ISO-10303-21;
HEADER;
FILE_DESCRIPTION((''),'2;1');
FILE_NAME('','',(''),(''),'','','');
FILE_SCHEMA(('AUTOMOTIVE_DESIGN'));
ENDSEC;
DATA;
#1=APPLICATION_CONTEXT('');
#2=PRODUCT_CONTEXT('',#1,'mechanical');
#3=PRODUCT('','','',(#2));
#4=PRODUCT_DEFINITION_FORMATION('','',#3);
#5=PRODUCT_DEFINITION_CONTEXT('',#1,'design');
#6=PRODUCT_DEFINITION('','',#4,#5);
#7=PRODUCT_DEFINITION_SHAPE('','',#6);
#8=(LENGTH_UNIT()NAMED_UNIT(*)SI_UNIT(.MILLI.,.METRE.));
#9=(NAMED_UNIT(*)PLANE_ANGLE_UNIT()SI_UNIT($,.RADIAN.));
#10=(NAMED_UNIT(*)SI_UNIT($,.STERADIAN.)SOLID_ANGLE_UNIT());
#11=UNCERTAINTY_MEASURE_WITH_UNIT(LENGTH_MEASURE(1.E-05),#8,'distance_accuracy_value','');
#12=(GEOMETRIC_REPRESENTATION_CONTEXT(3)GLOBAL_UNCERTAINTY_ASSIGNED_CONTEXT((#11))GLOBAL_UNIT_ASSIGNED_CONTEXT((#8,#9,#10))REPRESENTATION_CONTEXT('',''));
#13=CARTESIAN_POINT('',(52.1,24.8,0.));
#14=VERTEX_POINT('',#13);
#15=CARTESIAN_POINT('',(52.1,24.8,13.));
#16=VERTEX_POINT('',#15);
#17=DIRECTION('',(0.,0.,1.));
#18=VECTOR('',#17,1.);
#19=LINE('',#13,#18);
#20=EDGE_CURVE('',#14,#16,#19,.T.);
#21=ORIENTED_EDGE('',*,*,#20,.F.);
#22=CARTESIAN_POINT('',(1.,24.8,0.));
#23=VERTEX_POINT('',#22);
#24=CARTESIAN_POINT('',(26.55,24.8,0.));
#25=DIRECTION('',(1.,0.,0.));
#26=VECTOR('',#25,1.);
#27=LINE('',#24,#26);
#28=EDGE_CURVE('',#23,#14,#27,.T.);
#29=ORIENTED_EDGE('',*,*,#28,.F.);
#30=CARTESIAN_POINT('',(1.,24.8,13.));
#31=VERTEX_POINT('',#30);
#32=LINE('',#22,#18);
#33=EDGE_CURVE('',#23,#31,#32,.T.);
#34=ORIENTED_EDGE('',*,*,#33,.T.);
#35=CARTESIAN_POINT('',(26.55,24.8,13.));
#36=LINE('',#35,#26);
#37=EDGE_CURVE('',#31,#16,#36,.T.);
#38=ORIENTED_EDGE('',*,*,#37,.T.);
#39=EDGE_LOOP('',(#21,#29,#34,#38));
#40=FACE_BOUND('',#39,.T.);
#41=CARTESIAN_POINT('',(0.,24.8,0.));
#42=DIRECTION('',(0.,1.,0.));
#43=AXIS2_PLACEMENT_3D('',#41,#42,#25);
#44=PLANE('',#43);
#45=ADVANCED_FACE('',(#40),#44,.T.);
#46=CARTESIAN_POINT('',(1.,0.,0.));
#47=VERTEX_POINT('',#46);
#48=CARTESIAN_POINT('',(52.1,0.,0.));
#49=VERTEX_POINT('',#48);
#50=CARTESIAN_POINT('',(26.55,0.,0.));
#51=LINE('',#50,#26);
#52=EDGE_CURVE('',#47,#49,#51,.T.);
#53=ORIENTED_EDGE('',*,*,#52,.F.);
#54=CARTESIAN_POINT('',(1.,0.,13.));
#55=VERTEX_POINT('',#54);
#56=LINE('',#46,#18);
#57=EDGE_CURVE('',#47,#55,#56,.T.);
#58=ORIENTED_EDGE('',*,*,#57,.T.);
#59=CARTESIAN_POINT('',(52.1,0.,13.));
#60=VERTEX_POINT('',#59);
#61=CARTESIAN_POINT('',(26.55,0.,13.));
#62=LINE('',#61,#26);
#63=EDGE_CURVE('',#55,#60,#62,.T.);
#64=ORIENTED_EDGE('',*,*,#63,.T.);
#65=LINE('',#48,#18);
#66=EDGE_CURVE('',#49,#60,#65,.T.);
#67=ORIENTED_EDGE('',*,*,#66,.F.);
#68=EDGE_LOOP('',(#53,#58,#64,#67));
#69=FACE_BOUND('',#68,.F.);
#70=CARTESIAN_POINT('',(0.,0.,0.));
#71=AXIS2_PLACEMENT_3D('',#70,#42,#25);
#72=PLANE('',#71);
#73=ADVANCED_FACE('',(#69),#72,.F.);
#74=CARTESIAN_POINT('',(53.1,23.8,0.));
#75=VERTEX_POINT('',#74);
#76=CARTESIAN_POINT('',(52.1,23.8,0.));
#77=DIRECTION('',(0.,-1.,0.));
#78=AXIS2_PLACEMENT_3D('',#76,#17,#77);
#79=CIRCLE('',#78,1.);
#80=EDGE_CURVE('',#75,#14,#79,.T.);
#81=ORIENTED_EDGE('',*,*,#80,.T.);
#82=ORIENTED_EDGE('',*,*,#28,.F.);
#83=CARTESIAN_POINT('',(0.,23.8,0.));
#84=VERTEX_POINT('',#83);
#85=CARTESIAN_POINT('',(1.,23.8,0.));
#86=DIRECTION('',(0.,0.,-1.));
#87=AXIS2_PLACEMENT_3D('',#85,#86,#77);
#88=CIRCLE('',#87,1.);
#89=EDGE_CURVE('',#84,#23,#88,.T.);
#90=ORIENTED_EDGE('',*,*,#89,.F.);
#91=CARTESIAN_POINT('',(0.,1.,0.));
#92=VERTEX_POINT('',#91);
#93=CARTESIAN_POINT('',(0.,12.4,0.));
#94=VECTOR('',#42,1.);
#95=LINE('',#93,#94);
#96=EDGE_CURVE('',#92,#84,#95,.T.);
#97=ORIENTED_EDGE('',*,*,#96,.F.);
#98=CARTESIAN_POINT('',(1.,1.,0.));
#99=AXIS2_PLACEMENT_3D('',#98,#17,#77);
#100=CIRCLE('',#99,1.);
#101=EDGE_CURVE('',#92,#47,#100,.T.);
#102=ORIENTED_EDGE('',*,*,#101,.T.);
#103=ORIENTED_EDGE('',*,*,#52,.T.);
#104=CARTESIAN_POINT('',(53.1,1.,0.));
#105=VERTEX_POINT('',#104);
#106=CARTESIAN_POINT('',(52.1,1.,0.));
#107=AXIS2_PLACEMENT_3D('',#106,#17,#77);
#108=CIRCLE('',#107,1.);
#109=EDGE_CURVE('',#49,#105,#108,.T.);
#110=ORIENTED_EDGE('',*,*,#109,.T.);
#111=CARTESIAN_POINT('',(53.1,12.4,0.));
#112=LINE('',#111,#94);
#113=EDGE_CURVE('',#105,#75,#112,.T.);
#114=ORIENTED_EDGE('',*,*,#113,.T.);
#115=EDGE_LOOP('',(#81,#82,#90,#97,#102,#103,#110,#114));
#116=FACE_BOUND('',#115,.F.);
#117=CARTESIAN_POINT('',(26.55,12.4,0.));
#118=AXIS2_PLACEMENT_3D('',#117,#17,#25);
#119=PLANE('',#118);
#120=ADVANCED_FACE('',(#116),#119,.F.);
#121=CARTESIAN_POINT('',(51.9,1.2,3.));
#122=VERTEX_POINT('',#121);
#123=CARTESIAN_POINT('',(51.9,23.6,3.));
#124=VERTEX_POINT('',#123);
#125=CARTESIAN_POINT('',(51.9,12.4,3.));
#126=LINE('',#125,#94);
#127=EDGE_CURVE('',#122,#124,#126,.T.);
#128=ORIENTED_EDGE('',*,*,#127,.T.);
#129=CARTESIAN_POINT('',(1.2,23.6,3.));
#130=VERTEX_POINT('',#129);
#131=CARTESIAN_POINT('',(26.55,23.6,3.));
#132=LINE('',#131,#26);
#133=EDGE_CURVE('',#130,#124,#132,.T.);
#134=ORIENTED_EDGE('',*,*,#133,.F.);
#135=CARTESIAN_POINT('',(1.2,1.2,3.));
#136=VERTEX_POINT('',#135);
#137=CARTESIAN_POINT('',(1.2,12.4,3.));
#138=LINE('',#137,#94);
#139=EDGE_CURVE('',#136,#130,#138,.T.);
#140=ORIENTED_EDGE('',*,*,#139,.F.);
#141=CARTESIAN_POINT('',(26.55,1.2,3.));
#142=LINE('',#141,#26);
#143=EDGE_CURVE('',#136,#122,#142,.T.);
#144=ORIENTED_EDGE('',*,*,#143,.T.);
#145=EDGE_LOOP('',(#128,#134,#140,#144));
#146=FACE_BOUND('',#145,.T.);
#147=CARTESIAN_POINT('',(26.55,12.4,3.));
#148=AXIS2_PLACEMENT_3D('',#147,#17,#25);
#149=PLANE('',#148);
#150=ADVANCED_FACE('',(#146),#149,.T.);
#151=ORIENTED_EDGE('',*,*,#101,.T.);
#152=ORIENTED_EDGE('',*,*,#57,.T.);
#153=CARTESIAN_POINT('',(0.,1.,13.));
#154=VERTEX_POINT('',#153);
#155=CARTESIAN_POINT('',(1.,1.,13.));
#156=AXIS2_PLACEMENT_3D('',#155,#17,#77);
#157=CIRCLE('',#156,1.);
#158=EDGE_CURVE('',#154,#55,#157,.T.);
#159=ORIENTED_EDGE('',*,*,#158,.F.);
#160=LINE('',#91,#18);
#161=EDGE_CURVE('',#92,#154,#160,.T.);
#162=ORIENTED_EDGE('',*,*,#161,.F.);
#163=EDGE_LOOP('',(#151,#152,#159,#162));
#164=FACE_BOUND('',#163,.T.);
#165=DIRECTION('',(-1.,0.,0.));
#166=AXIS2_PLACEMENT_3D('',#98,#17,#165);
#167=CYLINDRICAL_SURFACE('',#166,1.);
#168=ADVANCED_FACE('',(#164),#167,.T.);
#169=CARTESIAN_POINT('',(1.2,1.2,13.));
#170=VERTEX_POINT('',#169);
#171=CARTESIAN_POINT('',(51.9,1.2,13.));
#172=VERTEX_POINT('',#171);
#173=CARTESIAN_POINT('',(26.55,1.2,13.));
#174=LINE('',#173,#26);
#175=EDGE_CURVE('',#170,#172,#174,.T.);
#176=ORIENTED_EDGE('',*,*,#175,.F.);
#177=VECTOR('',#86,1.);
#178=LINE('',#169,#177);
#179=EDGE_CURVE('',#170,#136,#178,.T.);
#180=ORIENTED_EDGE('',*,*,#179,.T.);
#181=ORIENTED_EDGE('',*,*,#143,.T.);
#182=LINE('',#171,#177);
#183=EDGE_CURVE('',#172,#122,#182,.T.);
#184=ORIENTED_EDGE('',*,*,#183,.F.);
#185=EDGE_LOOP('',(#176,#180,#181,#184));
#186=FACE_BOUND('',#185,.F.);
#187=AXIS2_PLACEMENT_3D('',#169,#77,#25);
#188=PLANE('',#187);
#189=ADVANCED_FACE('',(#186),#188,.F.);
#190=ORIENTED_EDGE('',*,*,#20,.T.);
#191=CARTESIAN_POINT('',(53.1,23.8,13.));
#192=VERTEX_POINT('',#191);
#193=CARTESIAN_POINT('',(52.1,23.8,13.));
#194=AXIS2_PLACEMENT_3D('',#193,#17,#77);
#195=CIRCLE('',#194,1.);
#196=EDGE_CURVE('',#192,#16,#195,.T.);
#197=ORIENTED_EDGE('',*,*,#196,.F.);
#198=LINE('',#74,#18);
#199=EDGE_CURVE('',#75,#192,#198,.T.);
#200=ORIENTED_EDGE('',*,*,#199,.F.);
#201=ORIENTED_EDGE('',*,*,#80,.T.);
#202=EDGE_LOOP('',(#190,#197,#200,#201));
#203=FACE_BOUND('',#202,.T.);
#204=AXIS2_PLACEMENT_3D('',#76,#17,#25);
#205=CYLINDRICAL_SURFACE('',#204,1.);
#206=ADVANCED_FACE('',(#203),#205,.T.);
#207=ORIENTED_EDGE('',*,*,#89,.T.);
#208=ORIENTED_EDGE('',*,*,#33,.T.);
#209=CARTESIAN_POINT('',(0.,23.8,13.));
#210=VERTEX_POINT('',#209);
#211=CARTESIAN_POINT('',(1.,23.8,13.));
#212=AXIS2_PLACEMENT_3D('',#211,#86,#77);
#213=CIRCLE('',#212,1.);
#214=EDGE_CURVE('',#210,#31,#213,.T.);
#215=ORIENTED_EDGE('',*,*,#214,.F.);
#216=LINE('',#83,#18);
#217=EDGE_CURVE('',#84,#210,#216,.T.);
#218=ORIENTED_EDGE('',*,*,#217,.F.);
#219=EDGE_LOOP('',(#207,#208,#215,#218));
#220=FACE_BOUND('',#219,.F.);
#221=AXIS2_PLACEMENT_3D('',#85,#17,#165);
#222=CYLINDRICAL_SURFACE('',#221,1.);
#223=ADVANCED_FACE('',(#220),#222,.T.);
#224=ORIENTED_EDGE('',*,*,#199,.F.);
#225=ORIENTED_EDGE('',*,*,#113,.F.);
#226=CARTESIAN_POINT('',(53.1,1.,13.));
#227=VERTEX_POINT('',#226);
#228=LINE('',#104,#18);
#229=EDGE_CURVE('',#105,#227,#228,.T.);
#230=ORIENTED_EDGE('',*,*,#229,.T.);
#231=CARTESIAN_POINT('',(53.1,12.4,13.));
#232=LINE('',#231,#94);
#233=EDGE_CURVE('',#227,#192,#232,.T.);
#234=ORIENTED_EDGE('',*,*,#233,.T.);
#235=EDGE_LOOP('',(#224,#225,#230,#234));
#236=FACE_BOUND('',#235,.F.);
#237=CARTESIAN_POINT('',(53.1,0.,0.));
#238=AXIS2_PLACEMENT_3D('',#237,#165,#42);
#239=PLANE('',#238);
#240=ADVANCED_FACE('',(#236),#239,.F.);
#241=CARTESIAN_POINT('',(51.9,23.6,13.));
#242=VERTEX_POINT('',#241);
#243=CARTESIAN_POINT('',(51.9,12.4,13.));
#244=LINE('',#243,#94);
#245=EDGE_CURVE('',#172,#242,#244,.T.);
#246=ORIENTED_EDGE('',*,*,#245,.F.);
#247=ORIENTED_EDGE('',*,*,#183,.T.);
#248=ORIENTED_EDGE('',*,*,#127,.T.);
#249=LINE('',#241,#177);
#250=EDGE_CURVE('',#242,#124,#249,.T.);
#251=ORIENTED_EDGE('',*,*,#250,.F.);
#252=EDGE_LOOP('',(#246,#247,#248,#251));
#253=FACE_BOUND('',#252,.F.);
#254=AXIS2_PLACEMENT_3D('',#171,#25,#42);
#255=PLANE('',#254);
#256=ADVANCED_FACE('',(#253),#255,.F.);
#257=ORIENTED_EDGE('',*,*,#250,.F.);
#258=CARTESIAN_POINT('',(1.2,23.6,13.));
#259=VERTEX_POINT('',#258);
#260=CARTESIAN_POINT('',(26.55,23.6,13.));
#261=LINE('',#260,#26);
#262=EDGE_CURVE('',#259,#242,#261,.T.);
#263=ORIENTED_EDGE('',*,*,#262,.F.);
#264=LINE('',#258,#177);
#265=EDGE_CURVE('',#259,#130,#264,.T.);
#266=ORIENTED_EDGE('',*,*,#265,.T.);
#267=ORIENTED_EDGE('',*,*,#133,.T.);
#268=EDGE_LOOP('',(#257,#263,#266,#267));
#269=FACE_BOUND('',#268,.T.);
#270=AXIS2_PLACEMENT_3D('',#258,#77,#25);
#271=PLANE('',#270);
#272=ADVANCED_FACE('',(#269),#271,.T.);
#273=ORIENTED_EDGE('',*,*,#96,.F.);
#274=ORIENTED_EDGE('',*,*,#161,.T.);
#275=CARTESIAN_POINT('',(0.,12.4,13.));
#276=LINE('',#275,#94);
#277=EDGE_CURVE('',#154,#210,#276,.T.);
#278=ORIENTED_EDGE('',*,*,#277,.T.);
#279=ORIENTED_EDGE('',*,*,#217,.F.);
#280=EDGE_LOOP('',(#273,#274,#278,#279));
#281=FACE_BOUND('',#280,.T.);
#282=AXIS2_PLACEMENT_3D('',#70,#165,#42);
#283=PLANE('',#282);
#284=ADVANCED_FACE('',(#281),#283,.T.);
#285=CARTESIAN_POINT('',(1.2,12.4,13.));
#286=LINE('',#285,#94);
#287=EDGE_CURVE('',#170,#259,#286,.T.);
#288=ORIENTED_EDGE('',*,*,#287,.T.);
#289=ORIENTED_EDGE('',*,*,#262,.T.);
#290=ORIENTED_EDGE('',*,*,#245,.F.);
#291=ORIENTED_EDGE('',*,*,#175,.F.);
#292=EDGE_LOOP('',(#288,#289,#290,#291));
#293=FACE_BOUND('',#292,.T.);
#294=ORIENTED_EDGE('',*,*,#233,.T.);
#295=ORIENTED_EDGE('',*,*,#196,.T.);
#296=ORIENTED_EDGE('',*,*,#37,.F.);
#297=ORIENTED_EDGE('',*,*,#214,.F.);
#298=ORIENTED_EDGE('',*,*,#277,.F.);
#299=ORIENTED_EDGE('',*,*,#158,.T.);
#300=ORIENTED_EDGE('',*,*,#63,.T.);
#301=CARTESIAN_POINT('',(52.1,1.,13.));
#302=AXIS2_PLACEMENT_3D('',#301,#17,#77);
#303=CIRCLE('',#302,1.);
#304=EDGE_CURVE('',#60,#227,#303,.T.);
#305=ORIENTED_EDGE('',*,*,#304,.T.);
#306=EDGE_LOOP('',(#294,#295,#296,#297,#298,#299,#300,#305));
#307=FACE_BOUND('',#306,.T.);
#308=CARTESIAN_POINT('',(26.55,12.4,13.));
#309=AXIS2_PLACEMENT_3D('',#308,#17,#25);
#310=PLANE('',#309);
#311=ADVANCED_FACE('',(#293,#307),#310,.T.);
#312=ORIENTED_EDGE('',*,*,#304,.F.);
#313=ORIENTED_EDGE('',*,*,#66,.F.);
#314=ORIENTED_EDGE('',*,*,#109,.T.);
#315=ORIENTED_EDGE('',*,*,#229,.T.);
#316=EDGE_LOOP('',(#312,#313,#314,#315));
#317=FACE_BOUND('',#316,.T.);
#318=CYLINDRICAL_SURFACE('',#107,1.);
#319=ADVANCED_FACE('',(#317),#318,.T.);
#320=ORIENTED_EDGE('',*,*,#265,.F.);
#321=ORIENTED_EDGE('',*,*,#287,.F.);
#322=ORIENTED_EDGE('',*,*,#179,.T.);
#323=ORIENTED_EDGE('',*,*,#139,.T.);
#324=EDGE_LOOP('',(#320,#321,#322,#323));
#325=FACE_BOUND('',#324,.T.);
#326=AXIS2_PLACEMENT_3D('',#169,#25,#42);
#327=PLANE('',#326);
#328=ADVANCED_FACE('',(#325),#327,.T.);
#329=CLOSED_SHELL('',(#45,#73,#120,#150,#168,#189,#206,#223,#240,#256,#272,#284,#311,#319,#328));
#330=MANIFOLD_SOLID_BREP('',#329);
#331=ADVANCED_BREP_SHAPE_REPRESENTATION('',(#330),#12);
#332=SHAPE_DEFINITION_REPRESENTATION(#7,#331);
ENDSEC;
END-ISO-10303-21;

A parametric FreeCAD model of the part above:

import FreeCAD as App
import Part
import Sketcher
from FreeCAD import Vector


def edges_at(feature, points):
    """Names of the edges that pass closest to the given points."""
    edges = feature.Shape.Edges
    near = lambda p: min(range(len(edges)), key=lambda i: edges[i].distToShape(Part.Vertex(*p))[0])
    return sorted({f"Edge{near(p) + 1}" for p in points})


def add_polygon(sketch, points):
    """Adds a closed chain of lines whose ends are joined by coincident constraints."""
    first, n = sketch.GeometryCount, len(points)
    for a, b in zip(points, points[1:] + points[:1]):
        sketch.addGeometry(Part.LineSegment(App.Vector(*a, 0), App.Vector(*b, 0)), False)
    for i in range(n):
        sketch.addConstraint(Sketcher.Constraint("Coincident", first + i, 2, first + (i + 1) % n, 1))

doc = App.newDocument("Part")
body = doc.addObject("PartDesign::Body", "Body")

# Sketch on XY plane
sketch1 = body.newObject("Sketcher::SketchObject", "Sketch")
sketch1.AttachmentSupport = (doc.getObject("XY_Plane"), [""])
sketch1.MapMode = "FlatFace"
add_polygon(sketch1, [(0, 25), (0, 0), (53, 0), (53, 25)])  # lines 0-3
sketch1.addConstraint(Sketcher.Constraint("Vertical", 0))
sketch1.addConstraint(Sketcher.Constraint("Horizontal", 1))
sketch1.addConstraint(Sketcher.Constraint("Vertical", 2))
sketch1.addConstraint(Sketcher.Constraint("Horizontal", 3))
sketch1.addConstraint(Sketcher.Constraint("Coincident", 0, 2, -1, 1))
sketch1.addConstraint(Sketcher.Constraint("DistanceX", 1, 1, 1, 2, 53.1))
sketch1.addConstraint(Sketcher.Constraint("DistanceY", 0, 2, 0, 1, 24.8))
pad1 = body.newObject("PartDesign::Pad", "Pad")
pad1.Profile = sketch1
pad1.Length = 13
doc.recompute()

fillet = body.newObject("PartDesign::Fillet", "Fillet")
fillet.Base = (pad1, edges_at(pad1, [
    (53.1, 24.8, 6.5),
    (53.1, 0, 6.5),
    (0, 24.8, 6.5),
    (0, 0, 6.5),
]))
fillet.Radius = 1

# Sketch on XY plane
sketch2 = body.newObject("Sketcher::SketchObject", "Sketch001")
sketch2.AttachmentSupport = (doc.getObject("XY_Plane"), [""])
sketch2.MapMode = "FlatFace"
sketch2.AttachmentOffset = App.Placement(Vector(0, 0, 13), App.Rotation())
add_polygon(sketch2, [(1, 24), (1, 1), (52, 1), (52, 24)])  # lines 0-3
sketch2.addConstraint(Sketcher.Constraint("Vertical", 0))
sketch2.addConstraint(Sketcher.Constraint("Horizontal", 1))
sketch2.addConstraint(Sketcher.Constraint("Vertical", 2))
sketch2.addConstraint(Sketcher.Constraint("Horizontal", 3))
sketch2.addConstraint(Sketcher.Constraint("DistanceX", 1, 1, 1, 2, 50.7))
sketch2.addConstraint(Sketcher.Constraint("DistanceY", 0, 2, 0, 1, 22.4))
sketch2.addConstraint(Sketcher.Constraint("DistanceX", -1, 1, 0, 2, 1.2))
sketch2.addConstraint(Sketcher.Constraint("DistanceY", -1, 1, 0, 2, 1.2))
pocket1 = body.newObject("PartDesign::Pocket", "Pocket")
pocket1.Profile = sketch2
pocket1.Length = 10

doc.recompute()
